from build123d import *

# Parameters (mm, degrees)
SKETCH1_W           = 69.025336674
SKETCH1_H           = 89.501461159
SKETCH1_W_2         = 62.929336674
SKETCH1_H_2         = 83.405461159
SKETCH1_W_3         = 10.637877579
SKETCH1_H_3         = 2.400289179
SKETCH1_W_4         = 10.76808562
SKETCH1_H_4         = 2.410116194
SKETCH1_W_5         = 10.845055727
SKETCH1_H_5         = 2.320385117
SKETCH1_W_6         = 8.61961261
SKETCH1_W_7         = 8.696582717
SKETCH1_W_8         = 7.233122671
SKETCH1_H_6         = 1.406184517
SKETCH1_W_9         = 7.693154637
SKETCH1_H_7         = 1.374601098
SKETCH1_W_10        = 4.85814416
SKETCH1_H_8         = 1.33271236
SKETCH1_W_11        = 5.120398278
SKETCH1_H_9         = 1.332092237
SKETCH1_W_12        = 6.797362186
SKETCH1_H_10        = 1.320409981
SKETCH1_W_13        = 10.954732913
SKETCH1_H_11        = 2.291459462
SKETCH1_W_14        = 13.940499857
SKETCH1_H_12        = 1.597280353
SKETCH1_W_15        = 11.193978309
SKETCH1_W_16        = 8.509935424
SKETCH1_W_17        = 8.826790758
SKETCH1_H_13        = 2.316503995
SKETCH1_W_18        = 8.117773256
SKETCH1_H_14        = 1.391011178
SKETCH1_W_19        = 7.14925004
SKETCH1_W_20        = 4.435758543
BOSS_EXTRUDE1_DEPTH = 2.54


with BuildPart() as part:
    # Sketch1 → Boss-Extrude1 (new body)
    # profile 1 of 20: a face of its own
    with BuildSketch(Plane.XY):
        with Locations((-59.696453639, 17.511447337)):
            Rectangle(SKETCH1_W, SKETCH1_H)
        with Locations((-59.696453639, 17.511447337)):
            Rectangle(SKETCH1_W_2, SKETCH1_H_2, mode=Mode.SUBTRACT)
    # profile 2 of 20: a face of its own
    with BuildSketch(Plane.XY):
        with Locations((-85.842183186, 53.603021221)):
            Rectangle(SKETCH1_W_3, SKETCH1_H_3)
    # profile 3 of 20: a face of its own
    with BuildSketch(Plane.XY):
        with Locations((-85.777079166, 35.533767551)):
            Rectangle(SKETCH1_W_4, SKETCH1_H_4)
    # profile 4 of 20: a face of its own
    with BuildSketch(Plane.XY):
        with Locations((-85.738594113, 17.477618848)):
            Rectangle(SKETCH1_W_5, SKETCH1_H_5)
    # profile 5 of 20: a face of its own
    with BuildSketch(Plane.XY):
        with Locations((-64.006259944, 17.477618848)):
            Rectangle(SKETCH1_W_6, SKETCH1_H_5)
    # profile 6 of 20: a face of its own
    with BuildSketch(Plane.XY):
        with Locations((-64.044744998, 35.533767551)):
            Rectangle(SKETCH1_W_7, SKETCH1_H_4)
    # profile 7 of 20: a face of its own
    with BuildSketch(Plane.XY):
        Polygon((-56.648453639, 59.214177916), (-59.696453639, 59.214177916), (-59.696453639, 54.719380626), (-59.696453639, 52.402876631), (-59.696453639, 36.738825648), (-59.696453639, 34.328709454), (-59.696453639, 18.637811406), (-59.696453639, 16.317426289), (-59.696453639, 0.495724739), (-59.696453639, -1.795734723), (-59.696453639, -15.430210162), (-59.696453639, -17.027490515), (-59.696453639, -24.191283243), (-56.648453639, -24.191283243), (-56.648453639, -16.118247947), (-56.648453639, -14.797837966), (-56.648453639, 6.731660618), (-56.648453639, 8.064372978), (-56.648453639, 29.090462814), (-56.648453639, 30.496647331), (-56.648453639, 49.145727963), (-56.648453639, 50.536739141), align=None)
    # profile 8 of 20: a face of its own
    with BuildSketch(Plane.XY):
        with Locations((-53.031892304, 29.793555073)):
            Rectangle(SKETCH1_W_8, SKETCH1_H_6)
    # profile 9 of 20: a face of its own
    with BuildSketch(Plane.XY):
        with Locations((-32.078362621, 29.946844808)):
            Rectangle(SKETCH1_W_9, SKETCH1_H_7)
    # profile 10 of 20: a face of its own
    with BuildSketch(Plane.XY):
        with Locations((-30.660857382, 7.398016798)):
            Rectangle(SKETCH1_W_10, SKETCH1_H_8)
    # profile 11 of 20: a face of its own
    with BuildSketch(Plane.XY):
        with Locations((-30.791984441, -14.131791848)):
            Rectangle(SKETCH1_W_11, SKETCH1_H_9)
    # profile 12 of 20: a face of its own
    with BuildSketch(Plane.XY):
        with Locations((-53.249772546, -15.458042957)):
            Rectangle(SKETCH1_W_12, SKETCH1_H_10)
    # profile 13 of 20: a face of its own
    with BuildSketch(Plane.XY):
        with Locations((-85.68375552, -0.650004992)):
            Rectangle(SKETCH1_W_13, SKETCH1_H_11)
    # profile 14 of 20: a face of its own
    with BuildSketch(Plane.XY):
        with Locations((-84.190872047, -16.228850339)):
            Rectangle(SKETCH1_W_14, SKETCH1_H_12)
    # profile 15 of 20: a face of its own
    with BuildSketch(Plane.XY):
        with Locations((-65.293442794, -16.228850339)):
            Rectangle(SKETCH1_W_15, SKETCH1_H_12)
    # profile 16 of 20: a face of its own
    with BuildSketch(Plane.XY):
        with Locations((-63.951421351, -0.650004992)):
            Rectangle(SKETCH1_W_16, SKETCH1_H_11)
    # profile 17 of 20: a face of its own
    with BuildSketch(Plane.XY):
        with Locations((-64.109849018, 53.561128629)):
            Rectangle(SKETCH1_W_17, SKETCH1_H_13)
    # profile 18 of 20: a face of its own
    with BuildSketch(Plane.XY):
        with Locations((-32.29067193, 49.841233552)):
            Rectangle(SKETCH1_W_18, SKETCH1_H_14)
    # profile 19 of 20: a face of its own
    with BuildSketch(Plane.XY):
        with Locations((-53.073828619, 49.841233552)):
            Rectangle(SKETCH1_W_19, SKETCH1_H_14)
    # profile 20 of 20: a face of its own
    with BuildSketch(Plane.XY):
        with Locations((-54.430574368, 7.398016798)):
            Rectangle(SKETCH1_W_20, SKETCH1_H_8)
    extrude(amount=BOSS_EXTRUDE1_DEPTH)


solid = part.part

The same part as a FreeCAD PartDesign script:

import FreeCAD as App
import Part
import Sketcher

V = App.Vector
Q = App.Units.Quantity

doc = App.newDocument("Part")
body = doc.addObject("PartDesign::Body", "Body")

sketch1 = body.newObject("Sketcher::SketchObject", "Sketch")
sketch1.AttachmentSupport = (doc.getObject("XY_Plane"), [""])
sketch1.MapMode = "FlatFace"
sketch1.addGeometry([
    Part.LineSegment(V(-94.2, 62.3, 0), V(-94.2, -27.2, 0)),
    Part.LineSegment(V(-94.2, -27.2, 0), V(-25.2, -27.2, 0)),
    Part.LineSegment(V(-25.2, -27.2, 0), V(-25.2, 62.3, 0)),
    Part.LineSegment(V(-25.2, 62.3, 0), V(-94.2, 62.3, 0)),
    Part.LineSegment(V(-59.7, -24.2, 0), V(-91.2, -24.2, 0)),
    Part.LineSegment(V(-91.2, -24.2, 0), V(-91.2, -17, 0)),
    Part.LineSegment(V(-91.2, -17, 0), V(-77.2, -17, 0)),
    Part.LineSegment(V(-77.2, -17, 0), V(-77.2, -15.4, 0)),
    Part.LineSegment(V(-77.2, -15.4, 0), V(-91.2, -15.4, 0)),
    Part.LineSegment(V(-91.2, -15.4, 0), V(-91.2, -1.8, 0)),
    Part.LineSegment(V(-91.2, -1.8, 0), V(-80.2, -1.8, 0)),
    Part.LineSegment(V(-80.2, -1.8, 0), V(-80.2, 0.5, 0)),
    Part.LineSegment(V(-80.2, 0.5, 0), V(-91.2, 0.5, 0)),
    Part.LineSegment(V(-91.2, 0.5, 0), V(-91.2, 16.3, 0)),
    Part.LineSegment(V(-91.2, 16.3, 0), V(-80.3, 16.3, 0)),
    Part.LineSegment(V(-80.3, 16.3, 0), V(-80.3, 18.6, 0)),
    Part.LineSegment(V(-80.3, 18.6, 0), V(-91.2, 18.6, 0)),
    Part.LineSegment(V(-91.2, 18.6, 0), V(-91.2, 34.3, 0)),
    Part.LineSegment(V(-91.2, 34.3, 0), V(-80.4, 34.3, 0)),
    Part.LineSegment(V(-80.4, 34.3, 0), V(-80.4, 36.7, 0)),
    Part.LineSegment(V(-80.4, 36.7, 0), V(-91.2, 36.7, 0)),
    Part.LineSegment(V(-91.2, 36.7, 0), V(-91.2, 52.4, 0)),
    Part.LineSegment(V(-91.2, 52.4, 0), V(-80.5, 52.4, 0)),
    Part.LineSegment(V(-80.5, 52.4, 0), V(-80.5, 54.8, 0)),
    Part.LineSegment(V(-80.5, 54.8, 0), V(-91.2, 54.8, 0)),
    Part.LineSegment(V(-91.2, 54.8, 0), V(-91.2, 59.2, 0)),
    Part.LineSegment(V(-91.2, 59.2, 0), V(-59.7, 59.2, 0)),
    Part.LineSegment(V(-59.7, 59.2, 0), V(-59.7, 54.7, 0)),
    Part.LineSegment(V(-59.7, 54.7, 0), V(-68.5, 54.7, 0)),
    Part.LineSegment(V(-68.5, 54.7, 0), V(-68.5, 52.4, 0)),
    Part.LineSegment(V(-68.5, 52.4, 0), V(-59.7, 52.4, 0)),
    Part.LineSegment(V(-59.7, 52.4, 0), V(-59.7, 36.7, 0)),
    Part.LineSegment(V(-59.7, 36.7, 0), V(-68.4, 36.7, 0)),
    Part.LineSegment(V(-68.4, 36.7, 0), V(-68.4, 34.3, 0)),
    Part.LineSegment(V(-68.4, 34.3, 0), V(-59.7, 34.3, 0)),
    Part.LineSegment(V(-59.7, 34.3, 0), V(-59.7, 18.6, 0)),
    Part.LineSegment(V(-59.7, 18.6, 0), V(-68.3, 18.6, 0)),
    Part.LineSegment(V(-68.3, 18.6, 0), V(-68.3, 16.3, 0)),
    Part.LineSegment(V(-68.3, 16.3, 0), V(-59.7, 16.3, 0)),
    Part.LineSegment(V(-59.7, 16.3, 0), V(-59.7, 0.5, 0)),
    Part.LineSegment(V(-59.7, 0.5, 0), V(-68.2, 0.5, 0)),
    Part.LineSegment(V(-68.2, 0.5, 0), V(-68.2, -1.8, 0)),
    Part.LineSegment(V(-68.2, -1.8, 0), V(-59.7, -1.8, 0)),
    Part.LineSegment(V(-59.7, -1.8, 0), V(-59.7, -15.4, 0)),
    Part.LineSegment(V(-59.7, -15.4, 0), V(-70.9, -15.4, 0)),
    Part.LineSegment(V(-70.9, -15.4, 0), V(-70.9, -17, 0)),
    Part.LineSegment(V(-70.9, -17, 0), V(-59.7, -17, 0)),
    Part.LineSegment(V(-59.7, -17, 0), V(-59.7, -24.2, 0)),
    Part.LineSegment(V(-28.2, -24.2, 0), V(-56.6, -24.2, 0)),
    Part.LineSegment(V(-56.6, -24.2, 0), V(-56.6, -16.1, 0)),
    Part.LineSegment(V(-56.6, -16.1, 0), V(-49.9, -16.1, 0)),
    Part.LineSegment(V(-49.9, -16.1, 0), V(-49.9, -14.8, 0)),
    Part.LineSegment(V(-49.9, -14.8, 0), V(-56.6, -14.8, 0)),
    Part.LineSegment(V(-56.6, -14.8, 0), V(-56.6, 6.7, 0)),
    Part.LineSegment(V(-56.6, 6.7, 0), V(-52.2, 6.7, 0)),
    Part.LineSegment(V(-52.2, 6.7, 0), V(-52.2, 8.1, 0)),
    Part.LineSegment(V(-52.2, 8.1, 0), V(-56.6, 8.1, 0)),
    Part.LineSegment(V(-56.6, 8.1, 0), V(-56.6, 29.1, 0)),
    Part.LineSegment(V(-56.6, 29.1, 0), V(-49.4, 29.1, 0)),
    Part.LineSegment(V(-49.4, 29.1, 0), V(-49.4, 30.5, 0)),
    Part.LineSegment(V(-49.4, 30.5, 0), V(-56.6, 30.5, 0)),
    Part.LineSegment(V(-56.6, 30.5, 0), V(-56.6, 49.1, 0)),
    Part.LineSegment(V(-56.6, 49.1, 0), V(-49.5, 49.1, 0)),
    Part.LineSegment(V(-49.5, 49.1, 0), V(-49.5, 50.5, 0)),
    Part.LineSegment(V(-49.5, 50.5, 0), V(-56.6, 50.5, 0)),
    Part.LineSegment(V(-56.6, 50.5, 0), V(-56.6, 59.2, 0)),
    Part.LineSegment(V(-56.6, 59.2, 0), V(-28.2, 59.2, 0)),
    Part.LineSegment(V(-28.2, 59.2, 0), V(-28.2, 50.5, 0)),
    Part.LineSegment(V(-28.2, 50.5, 0), V(-36.3, 50.5, 0)),
    Part.LineSegment(V(-36.3, 50.5, 0), V(-36.3, 49.1, 0)),
    Part.LineSegment(V(-36.3, 49.1, 0), V(-28.2, 49.1, 0)),
    Part.LineSegment(V(-28.2, 49.1, 0), V(-28.2, 30.6, 0)),
    Part.LineSegment(V(-28.2, 30.6, 0), V(-35.9, 30.6, 0)),
    Part.LineSegment(V(-35.9, 30.6, 0), V(-35.9, 29.3, 0)),
    Part.LineSegment(V(-35.9, 29.3, 0), V(-28.2, 29.3, 0)),
    Part.LineSegment(V(-28.2, 29.3, 0), V(-28.2, 8.1, 0)),
    Part.LineSegment(V(-28.2, 8.1, 0), V(-33.1, 8.1, 0)),
    Part.LineSegment(V(-33.1, 8.1, 0), V(-33.1, 6.7, 0)),
    Part.LineSegment(V(-33.1, 6.7, 0), V(-28.2, 6.7, 0)),
    Part.LineSegment(V(-28.2, 6.7, 0), V(-28.2, -13.5, 0)),
    Part.LineSegment(V(-28.2, -13.5, 0), V(-33.4, -13.5, 0)),
    Part.LineSegment(V(-33.4, -13.5, 0), V(-33.4, -14.8, 0)),
    Part.LineSegment(V(-33.4, -14.8, 0), V(-28.2, -14.8, 0)),
    Part.LineSegment(V(-28.2, -14.8, 0), V(-28.2, -24.2, 0)),
], False)
sketch1.addConstraint([
    Sketcher.Constraint("Coincident", 0, 2, 1, 1),
    Sketcher.Constraint("Coincident", 1, 2, 2, 1),
    Sketcher.Constraint("Coincident", 2, 2, 3, 1),
    Sketcher.Constraint("Coincident", 3, 2, 0, 1),
    Sketcher.Constraint("Coincident", 4, 2, 5, 1),
    Sketcher.Constraint("Coincident", 5, 2, 6, 1),
    Sketcher.Constraint("Coincident", 6, 2, 7, 1),
    Sketcher.Constraint("Coincident", 7, 2, 8, 1),
    Sketcher.Constraint("Coincident", 8, 2, 9, 1),
    Sketcher.Constraint("Coincident", 9, 2, 10, 1),
    Sketcher.Constraint("Coincident", 10, 2, 11, 1),
    Sketcher.Constraint("Coincident", 11, 2, 12, 1),
    Sketcher.Constraint("Coincident", 12, 2, 13, 1),
    Sketcher.Constraint("Coincident", 13, 2, 14, 1),
    Sketcher.Constraint("Coincident", 14, 2, 15, 1),
    Sketcher.Constraint("Coincident", 15, 2, 16, 1),
    Sketcher.Constraint("Coincident", 16, 2, 17, 1),
    Sketcher.Constraint("Coincident", 17, 2, 18, 1),
    Sketcher.Constraint("Coincident", 18, 2, 19, 1),
    Sketcher.Constraint("Coincident", 19, 2, 20, 1),
    Sketcher.Constraint("Coincident", 20, 2, 21, 1),
    Sketcher.Constraint("Coincident", 21, 2, 22, 1),
    Sketcher.Constraint("Coincident", 22, 2, 23, 1),
    Sketcher.Constraint("Coincident", 23, 2, 24, 1),
    Sketcher.Constraint("Coincident", 24, 2, 25, 1),
    Sketcher.Constraint("Coincident", 25, 2, 26, 1),
    Sketcher.Constraint("Coincident", 26, 2, 27, 1),
    Sketcher.Constraint("Coincident", 27, 2, 28, 1),
    Sketcher.Constraint("Coincident", 28, 2, 29, 1),
    Sketcher.Constraint("Coincident", 29, 2, 30, 1),
    Sketcher.Constraint("Coincident", 30, 2, 31, 1),
    Sketcher.Constraint("Coincident", 31, 2, 32, 1),
    Sketcher.Constraint("Coincident", 32, 2, 33, 1),
    Sketcher.Constraint("Coincident", 33, 2, 34, 1),
    Sketcher.Constraint("Coincident", 34, 2, 35, 1),
    Sketcher.Constraint("Coincident", 35, 2, 36, 1),
    Sketcher.Constraint("Coincident", 36, 2, 37, 1),
    Sketcher.Constraint("Coincident", 37, 2, 38, 1),
    Sketcher.Constraint("Coincident", 38, 2, 39, 1),
    Sketcher.Constraint("Coincident", 39, 2, 40, 1),
    Sketcher.Constraint("Coincident", 40, 2, 41, 1),
    Sketcher.Constraint("Coincident", 41, 2, 42, 1),
    Sketcher.Constraint("Coincident", 42, 2, 43, 1),
    Sketcher.Constraint("Coincident", 43, 2, 44, 1),
    Sketcher.Constraint("Coincident", 44, 2, 45, 1),
    Sketcher.Constraint("Coincident", 45, 2, 46, 1),
    Sketcher.Constraint("Coincident", 46, 2, 47, 1),
    Sketcher.Constraint("Coincident", 47, 2, 4, 1),
    Sketcher.Constraint("Coincident", 48, 2, 49, 1),
    Sketcher.Constraint("Coincident", 49, 2, 50, 1),
    Sketcher.Constraint("Coincident", 50, 2, 51, 1),
    Sketcher.Constraint("Coincident", 51, 2, 52, 1),
    Sketcher.Constraint("Coincident", 52, 2, 53, 1),
    Sketcher.Constraint("Coincident", 53, 2, 54, 1),
    Sketcher.Constraint("Coincident", 54, 2, 55, 1),
    Sketcher.Constraint("Coincident", 55, 2, 56, 1),
    Sketcher.Constraint("Coincident", 56, 2, 57, 1),
    Sketcher.Constraint("Coincident", 57, 2, 58, 1),
    Sketcher.Constraint("Coincident", 58, 2, 59, 1),
    Sketcher.Constraint("Coincident", 59, 2, 60, 1),
    Sketcher.Constraint("Coincident", 60, 2, 61, 1),
    Sketcher.Constraint("Coincident", 61, 2, 62, 1),
    Sketcher.Constraint("Coincident", 62, 2, 63, 1),
    Sketcher.Constraint("Coincident", 63, 2, 64, 1),
    Sketcher.Constraint("Coincident", 64, 2, 65, 1),
    Sketcher.Constraint("Coincident", 65, 2, 66, 1),
    Sketcher.Constraint("Coincident", 66, 2, 67, 1),
    Sketcher.Constraint("Coincident", 67, 2, 68, 1),
    Sketcher.Constraint("Coincident", 68, 2, 69, 1),
    Sketcher.Constraint("Coincident", 69, 2, 70, 1),
    Sketcher.Constraint("Coincident", 70, 2, 71, 1),
    Sketcher.Constraint("Coincident", 71, 2, 72, 1),
    Sketcher.Constraint("Coincident", 72, 2, 73, 1),
    Sketcher.Constraint("Coincident", 73, 2, 74, 1),
    Sketcher.Constraint("Coincident", 74, 2, 75, 1),
    Sketcher.Constraint("Coincident", 75, 2, 76, 1),
    Sketcher.Constraint("Coincident", 76, 2, 77, 1),
    Sketcher.Constraint("Coincident", 77, 2, 78, 1),
    Sketcher.Constraint("Coincident", 78, 2, 79, 1),
    Sketcher.Constraint("Coincident", 79, 2, 80, 1),
    Sketcher.Constraint("Coincident", 80, 2, 81, 1),
    Sketcher.Constraint("Coincident", 81, 2, 82, 1),
    Sketcher.Constraint("Coincident", 82, 2, 83, 1),
    Sketcher.Constraint("Coincident", 83, 2, 48, 1),
    Sketcher.Constraint("Vertical", 0),
    Sketcher.Constraint("Horizontal", 1),
    Sketcher.Constraint("Vertical", 2),
    Sketcher.Constraint("Horizontal", 3),
    Sketcher.Constraint("Horizontal", 4),
    Sketcher.Constraint("Vertical", 5),
    Sketcher.Constraint("Horizontal", 6),
    Sketcher.Constraint("Vertical", 7),
    Sketcher.Constraint("Horizontal", 8),
    Sketcher.Constraint("Vertical", 9),
    Sketcher.Constraint("Horizontal", 10),
    Sketcher.Constraint("Vertical", 11),
    Sketcher.Constraint("Horizontal", 12),
    Sketcher.Constraint("Vertical", 13),
    Sketcher.Constraint("Horizontal", 14),
    Sketcher.Constraint("Vertical", 15),
    Sketcher.Constraint("Horizontal", 16),
    Sketcher.Constraint("Vertical", 17),
    Sketcher.Constraint("Horizontal", 18),
    Sketcher.Constraint("Vertical", 19),
    Sketcher.Constraint("Horizontal", 20),
    Sketcher.Constraint("Vertical", 21),
    Sketcher.Constraint("Horizontal", 22),
    Sketcher.Constraint("Vertical", 23),
    Sketcher.Constraint("Horizontal", 24),
    Sketcher.Constraint("Vertical", 25),
    Sketcher.Constraint("Horizontal", 26),
    Sketcher.Constraint("Vertical", 27),
    Sketcher.Constraint("Horizontal", 28),
    Sketcher.Constraint("Vertical", 29),
    Sketcher.Constraint("Horizontal", 30),
    Sketcher.Constraint("Vertical", 31),
    Sketcher.Constraint("Horizontal", 32),
    Sketcher.Constraint("Vertical", 33),
    Sketcher.Constraint("Horizontal", 34),
    Sketcher.Constraint("Vertical", 35),
    Sketcher.Constraint("Horizontal", 36),
    Sketcher.Constraint("Vertical", 37),
    Sketcher.Constraint("Horizontal", 38),
    Sketcher.Constraint("Vertical", 39),
    Sketcher.Constraint("Horizontal", 40),
    Sketcher.Constraint("Vertical", 41),
    Sketcher.Constraint("Horizontal", 42),
    Sketcher.Constraint("Vertical", 43),
    Sketcher.Constraint("Horizontal", 44),
    Sketcher.Constraint("Vertical", 45),
    Sketcher.Constraint("Horizontal", 46),
    Sketcher.Constraint("Vertical", 47),
    Sketcher.Constraint("Horizontal", 48),
    Sketcher.Constraint("Vertical", 49),
    Sketcher.Constraint("Horizontal", 50),
    Sketcher.Constraint("Vertical", 51),
    Sketcher.Constraint("Horizontal", 52),
    Sketcher.Constraint("Vertical", 53),
    Sketcher.Constraint("Horizontal", 54),
    Sketcher.Constraint("Vertical", 55),
    Sketcher.Constraint("Horizontal", 56),
    Sketcher.Constraint("Vertical", 57),
    Sketcher.Constraint("Horizontal", 58),
    Sketcher.Constraint("Vertical", 59),
    Sketcher.Constraint("Horizontal", 60),
    Sketcher.Constraint("Vertical", 61),
    Sketcher.Constraint("Horizontal", 62),
    Sketcher.Constraint("Vertical", 63),
    Sketcher.Constraint("Horizontal", 64),
    Sketcher.Constraint("Vertical", 65),
    Sketcher.Constraint("Horizontal", 66),
    Sketcher.Constraint("Vertical", 67),
    Sketcher.Constraint("Horizontal", 68),
    Sketcher.Constraint("Vertical", 69),
    Sketcher.Constraint("Horizontal", 70),
    Sketcher.Constraint("Vertical", 71),
    Sketcher.Constraint("Horizontal", 72),
    Sketcher.Constraint("Vertical", 73),
    Sketcher.Constraint("Horizontal", 74),
    Sketcher.Constraint("Vertical", 75),
    Sketcher.Constraint("Horizontal", 76),
    Sketcher.Constraint("Vertical", 77),
    Sketcher.Constraint("Horizontal", 78),
    Sketcher.Constraint("Vertical", 79),
    Sketcher.Constraint("Horizontal", 80),
    Sketcher.Constraint("Vertical", 81),
    Sketcher.Constraint("Horizontal", 82),
    Sketcher.Constraint("Vertical", 83),
    Sketcher.Constraint("Horizontal", 22, 2, 29, 2),
    Sketcher.Constraint("Horizontal", 20, 2, 31, 2),
    Sketcher.Constraint("Horizontal", 18, 2, 33, 2),
    Sketcher.Constraint("Horizontal", 16, 2, 35, 2),
    Sketcher.Constraint("Horizontal", 14, 2, 37, 2),
    Sketcher.Constraint("Horizontal", 12, 2, 39, 2),
    Sketcher.Constraint("Horizontal", 10, 2, 41, 2),
    Sketcher.Constraint("Horizontal", 8, 2, 43, 2),
    Sketcher.Constraint("Horizontal", 6, 2, 45, 2),
    Sketcher.Constraint("Horizontal", 47, 2, 48, 2),
    Sketcher.Constraint("Horizontal", 26, 2, 65, 2),
    Sketcher.Constraint("Horizontal", 64, 2, 67, 2),
    Sketcher.Constraint("Horizontal", 62, 2, 69, 2),
    Sketcher.Constraint("Horizontal", 56, 2, 75, 2),
    Sketcher.Constraint("Horizontal", 54, 2, 77, 2),
    Sketcher.Constraint("Horizontal", 52, 2, 81, 2),
    Sketcher.Constraint("Vertical", 5, 2, 8, 2),
    Sketcher.Constraint("Vertical", 9, 2, 12, 2),
    Sketcher.Constraint("Vertical", 13, 2, 16, 2),
    Sketcher.Constraint("Vertical", 17, 2, 20, 2),
    Sketcher.Constraint("Vertical", 21, 2, 24, 2),
    Sketcher.Constraint("Vertical", 27, 2, 30, 2),
    Sketcher.Constraint("Vertical", 31, 2, 34, 2),
    Sketcher.Constraint("Vertical", 35, 2, 38, 2),
    Sketcher.Constraint("Vertical", 39, 2, 42, 2),
    Sketcher.Constraint("Vertical", 43, 2, 46, 2),
    Sketcher.Constraint("Vertical", 49, 2, 52, 2),
    Sketcher.Constraint("Vertical", 53, 2, 56, 2),
    Sketcher.Constraint("Vertical", 57, 2, 60, 2),
    Sketcher.Constraint("Vertical", 61, 2, 64, 2),
    Sketcher.Constraint("Vertical", 67, 2, 70, 2),
    Sketcher.Constraint("Vertical", 71, 2, 74, 2),
    Sketcher.Constraint("Vertical", 75, 2, 78, 2),
    Sketcher.Constraint("Vertical", 79, 2, 82, 2),
    Sketcher.Constraint("DistanceX", 6, 1, 6, 2, Q("13.9405 mm")),
    Sketcher.Constraint("DistanceX", 80, 2, 80, 1, Q("5.120398 mm")),
    Sketcher.Constraint("DistanceY", 13, 1, 13, 2, Q("15.821702 mm")),
    Sketcher.Constraint("DistanceY", 17, 1, 17, 2, Q("15.690898 mm")),
    Sketcher.Constraint("DistanceY", 53, 1, 53, 2, Q("21.529499 mm")),
    Sketcher.Constraint("DistanceY", 73, 2, 73, 1, Q("1.374601 mm")),
    Sketcher.Constraint("DistanceX", 4, 2, 4, 1, Q("31.464668 mm")),
    Sketcher.Constraint("DistanceX", 28, 2, 28, 1, Q("8.826791 mm")),
    Sketcher.Constraint("DistanceX", 44, 2, 44, 1, Q("11.193978 mm")),
    Sketcher.Constraint("DistanceX", 48, 2, 48, 1, Q("28.416668 mm")),
    Sketcher.Constraint("DistanceX", 54, 1, 54, 2, Q("4.435759 mm")),
    Sketcher.Constraint("DistanceX", 62, 1, 62, 2, Q("7.14925 mm")),
    Sketcher.Constraint("DistanceY", 0, 2, 0, 1, Q("89.501461 mm")),
    Sketcher.Constraint("DistanceY", 7, 1, 7, 2, Q("1.59728 mm")),
    Sketcher.Constraint("DistanceY", 11, 1, 11, 2, Q("2.291459 mm")),
    Sketcher.Constraint("DistanceY", 21, 1, 21, 2, Q("15.664051 mm")),
    Sketcher.Constraint("DistanceY", 23, 1, 23, 2, Q("2.400289 mm")),
    Sketcher.Constraint("DistanceY", 51, 1, 51, 2, Q("1.32041 mm")),
    Sketcher.Constraint("DistanceY", 57, 1, 57, 2, Q("21.02609 mm")),
    Sketcher.Constraint("DistanceY", 61, 1, 61, 2, Q("18.649081 mm")),
    Sketcher.Constraint("DistanceY", 63, 1, 63, 2, Q("1.391011 mm")),
    Sketcher.Constraint("DistanceY", 65, 1, 65, 2, Q("8.677439 mm")),
    Sketcher.Constraint("DistanceY", 75, 2, 75, 1, Q("21.195171 mm")),
    Sketcher.Constraint("DistanceX", 1, 1, 1, 2, Q("69.025337 mm")),
    Sketcher.Constraint("DistanceX", 10, 1, 10, 2, Q("10.954733 mm")),
    Sketcher.Constraint("DistanceX", 14, 1, 14, 2, Q("10.845056 mm")),
    Sketcher.Constraint("DistanceX", 18, 1, 18, 2, Q("10.768086 mm")),
    Sketcher.Constraint("DistanceX", 22, 1, 22, 2, Q("10.637878 mm")),
    Sketcher.Constraint("DistanceX", 32, 2, 32, 1, Q("8.696583 mm")),
    Sketcher.Constraint("DistanceX", 36, 2, 36, 1, Q("8.619613 mm")),
    Sketcher.Constraint("DistanceX", 40, 2, 40, 1, Q("8.509935 mm")),
    Sketcher.Constraint("DistanceX", 50, 1, 50, 2, Q("6.797362 mm")),
    Sketcher.Constraint("DistanceX", 58, 1, 58, 2, Q("7.233123 mm")),
    Sketcher.Constraint("DistanceX", 68, 2, 68, 1, Q("8.117773 mm")),
    Sketcher.Constraint("DistanceX", 72, 2, 72, 1, Q("7.693155 mm")),
    Sketcher.Constraint("DistanceX", 76, 2, 76, 1, Q("4.858144 mm")),
    Sketcher.Constraint("DistanceY", 5, 1, 5, 2, Q("7.163793 mm")),
    Sketcher.Constraint("DistanceY", 9, 1, 9, 2, Q("13.634475 mm")),
    Sketcher.Constraint("DistanceY", 15, 1, 15, 2, Q("2.320385 mm")),
    Sketcher.Constraint("DistanceY", 19, 1, 19, 2, Q("2.410116 mm")),
    Sketcher.Constraint("DistanceY", 25, 1, 25, 2, Q("4.411012 mm")),
    Sketcher.Constraint("DistanceY", 27, 2, 27, 1, Q("4.494797 mm")),
    Sketcher.Constraint("DistanceY", 49, 1, 49, 2, Q("8.073035 mm")),
    Sketcher.Constraint("DistanceY", 55, 1, 55, 2, Q("1.332712 mm")),
    Sketcher.Constraint("DistanceY", 79, 2, 79, 1, Q("20.197406 mm")),
    Sketcher.Constraint("DistanceX", 0, 2, -1, 1, Q("94.209122 mm")),
    Sketcher.Constraint("DistanceX", 4, 2, -1, 1, Q("91.161122 mm")),
    Sketcher.Constraint("DistanceY", 5, 2, -1, 1, Q("17.027491 mm")),
    Sketcher.Constraint("DistanceX", 50, 2, -1, 1, Q("49.851091 mm")),
    Sketcher.Constraint("DistanceY", 0, 2, -1, 1, Q("27.239283 mm")),
])
pad1 = body.newObject("PartDesign::Pad", "Pad")
pad1.Profile = sketch1
pad1.Length = Q("0.1 in")

doc.recompute()
